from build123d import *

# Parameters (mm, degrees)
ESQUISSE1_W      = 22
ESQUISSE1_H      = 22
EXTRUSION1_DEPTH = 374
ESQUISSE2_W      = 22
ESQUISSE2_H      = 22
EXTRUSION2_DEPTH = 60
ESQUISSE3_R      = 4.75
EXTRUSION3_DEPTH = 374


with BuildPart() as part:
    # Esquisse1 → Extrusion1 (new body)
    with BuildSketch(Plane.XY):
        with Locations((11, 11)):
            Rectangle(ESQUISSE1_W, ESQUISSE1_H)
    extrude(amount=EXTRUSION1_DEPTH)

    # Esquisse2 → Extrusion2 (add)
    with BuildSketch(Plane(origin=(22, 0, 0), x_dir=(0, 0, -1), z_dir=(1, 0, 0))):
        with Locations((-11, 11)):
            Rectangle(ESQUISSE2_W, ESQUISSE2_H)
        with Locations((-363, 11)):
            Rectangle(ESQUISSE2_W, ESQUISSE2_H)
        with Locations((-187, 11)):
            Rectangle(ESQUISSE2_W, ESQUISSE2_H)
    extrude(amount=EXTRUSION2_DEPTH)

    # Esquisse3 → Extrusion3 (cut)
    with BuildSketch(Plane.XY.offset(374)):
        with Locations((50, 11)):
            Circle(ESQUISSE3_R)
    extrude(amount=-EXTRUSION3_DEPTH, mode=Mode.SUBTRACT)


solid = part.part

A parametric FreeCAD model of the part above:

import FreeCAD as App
import Part
import Sketcher

V = App.Vector


def add_polygon(sketch, points):
    """Adds a closed chain of lines whose ends are joined by coincident constraints."""
    first, n = sketch.GeometryCount, len(points)
    for a, b in zip(points, points[1:] + points[:1]):
        sketch.addGeometry(Part.LineSegment(App.Vector(*a, 0), App.Vector(*b, 0)), False)
    for i in range(n):
        sketch.addConstraint(Sketcher.Constraint("Coincident", first + i, 2, first + (i + 1) % n, 1))

doc = App.newDocument("Part")
body = doc.addObject("PartDesign::Body", "Body")

sketch1 = body.newObject("Sketcher::SketchObject", "Sketch")
sketch1.AttachmentSupport = (doc.getObject("XY_Plane"), [""])
sketch1.MapMode = "FlatFace"
add_polygon(sketch1, [(0, 22), (0, 0), (22, 0), (22, 22)])
sketch1.addConstraint([
    Sketcher.Constraint("Vertical", 0),
    Sketcher.Constraint("Horizontal", 1),
    Sketcher.Constraint("Vertical", 2),
    Sketcher.Constraint("Horizontal", 3),
    Sketcher.Constraint("Coincident", 0, 2, -1, 1),
    Sketcher.Constraint("Equal", 3, 0),
    Sketcher.Constraint("DistanceX", 1, 1, 1, 2, 22.0),
])
pad1 = body.newObject("PartDesign::Pad", "Pad")
pad1.Profile = sketch1
pad1.Length = 374

sketch2 = body.newObject("Sketcher::SketchObject", "Sketch001")
sketch2.AttachmentSupport = (doc.getObject("YZ_Plane"), [""])
sketch2.MapMode = "FlatFace"
sketch2.AttachmentOffset = App.Placement(V(0, 0, 22), App.Rotation())
add_polygon(sketch2, [(22, 22), (0, 22), (0, 0), (22, 0)])
add_polygon(sketch2, [(22, 374), (0, 374), (0, 352), (22, 352)])
add_polygon(sketch2, [(22, 198), (0, 198), (0, 176), (22, 176)])
sketch2.addConstraint([
    Sketcher.Constraint("Horizontal", 0),
    Sketcher.Constraint("Vertical", 1),
    Sketcher.Constraint("Horizontal", 2),
    Sketcher.Constraint("Vertical", 3),
    Sketcher.Constraint("Horizontal", 4),
    Sketcher.Constraint("Vertical", 5),
    Sketcher.Constraint("Horizontal", 6),
    Sketcher.Constraint("Vertical", 7),
    Sketcher.Constraint("Horizontal", 8),
    Sketcher.Constraint("Vertical", 9),
    Sketcher.Constraint("Horizontal", 10),
    Sketcher.Constraint("Vertical", 11),
    Sketcher.Constraint("Coincident", 1, 2, -1, 1),
    Sketcher.Constraint("PointOnObject", 4, 2, -2),
    Sketcher.Constraint("PointOnObject", 8, 2, -2),
    Sketcher.Constraint("Vertical", 3, 2, 6, 2),
    Sketcher.Constraint("Vertical", 7, 2, 10, 2),
    Sketcher.Constraint("Equal", 10, 1),
    Sketcher.Constraint("Equal", 3, 5),
    Sketcher.Constraint("Equal", 7, 9),
    Sketcher.Constraint("DistanceX", 0, 2, 0, 1, 22.0),
    Sketcher.Constraint("DistanceY", -1, 1, 4, 2, 374.0),
    Sketcher.Constraint("DistanceY", -1, 1, 8, 2, 198.0),
])
pad2 = body.newObject("PartDesign::Pad", "Pad001")
pad2.Profile = sketch2
pad2.Length = 60

sketch3 = body.newObject("Sketcher::SketchObject", "Sketch002")
sketch3.AttachmentSupport = (doc.getObject("XY_Plane"), [""])
sketch3.MapMode = "FlatFace"
sketch3.AttachmentOffset = App.Placement(V(0, 0, 374), App.Rotation())
sketch3.addGeometry(Part.Circle(V(50, 11, 0), V(0, 0, 1), 4.8), False)
sketch3.addConstraint([
    Sketcher.Constraint("Diameter", 0, 9.5),
    Sketcher.Constraint("DistanceX", -1, 1, 0, 3, 50.0),
    Sketcher.Constraint("DistanceY", -1, 1, 0, 3, 11.0),
])
pocket1 = body.newObject("PartDesign::Pocket", "Pocket")
pocket1.Profile = sketch3
pocket1.Length = 374

doc.recompute()
